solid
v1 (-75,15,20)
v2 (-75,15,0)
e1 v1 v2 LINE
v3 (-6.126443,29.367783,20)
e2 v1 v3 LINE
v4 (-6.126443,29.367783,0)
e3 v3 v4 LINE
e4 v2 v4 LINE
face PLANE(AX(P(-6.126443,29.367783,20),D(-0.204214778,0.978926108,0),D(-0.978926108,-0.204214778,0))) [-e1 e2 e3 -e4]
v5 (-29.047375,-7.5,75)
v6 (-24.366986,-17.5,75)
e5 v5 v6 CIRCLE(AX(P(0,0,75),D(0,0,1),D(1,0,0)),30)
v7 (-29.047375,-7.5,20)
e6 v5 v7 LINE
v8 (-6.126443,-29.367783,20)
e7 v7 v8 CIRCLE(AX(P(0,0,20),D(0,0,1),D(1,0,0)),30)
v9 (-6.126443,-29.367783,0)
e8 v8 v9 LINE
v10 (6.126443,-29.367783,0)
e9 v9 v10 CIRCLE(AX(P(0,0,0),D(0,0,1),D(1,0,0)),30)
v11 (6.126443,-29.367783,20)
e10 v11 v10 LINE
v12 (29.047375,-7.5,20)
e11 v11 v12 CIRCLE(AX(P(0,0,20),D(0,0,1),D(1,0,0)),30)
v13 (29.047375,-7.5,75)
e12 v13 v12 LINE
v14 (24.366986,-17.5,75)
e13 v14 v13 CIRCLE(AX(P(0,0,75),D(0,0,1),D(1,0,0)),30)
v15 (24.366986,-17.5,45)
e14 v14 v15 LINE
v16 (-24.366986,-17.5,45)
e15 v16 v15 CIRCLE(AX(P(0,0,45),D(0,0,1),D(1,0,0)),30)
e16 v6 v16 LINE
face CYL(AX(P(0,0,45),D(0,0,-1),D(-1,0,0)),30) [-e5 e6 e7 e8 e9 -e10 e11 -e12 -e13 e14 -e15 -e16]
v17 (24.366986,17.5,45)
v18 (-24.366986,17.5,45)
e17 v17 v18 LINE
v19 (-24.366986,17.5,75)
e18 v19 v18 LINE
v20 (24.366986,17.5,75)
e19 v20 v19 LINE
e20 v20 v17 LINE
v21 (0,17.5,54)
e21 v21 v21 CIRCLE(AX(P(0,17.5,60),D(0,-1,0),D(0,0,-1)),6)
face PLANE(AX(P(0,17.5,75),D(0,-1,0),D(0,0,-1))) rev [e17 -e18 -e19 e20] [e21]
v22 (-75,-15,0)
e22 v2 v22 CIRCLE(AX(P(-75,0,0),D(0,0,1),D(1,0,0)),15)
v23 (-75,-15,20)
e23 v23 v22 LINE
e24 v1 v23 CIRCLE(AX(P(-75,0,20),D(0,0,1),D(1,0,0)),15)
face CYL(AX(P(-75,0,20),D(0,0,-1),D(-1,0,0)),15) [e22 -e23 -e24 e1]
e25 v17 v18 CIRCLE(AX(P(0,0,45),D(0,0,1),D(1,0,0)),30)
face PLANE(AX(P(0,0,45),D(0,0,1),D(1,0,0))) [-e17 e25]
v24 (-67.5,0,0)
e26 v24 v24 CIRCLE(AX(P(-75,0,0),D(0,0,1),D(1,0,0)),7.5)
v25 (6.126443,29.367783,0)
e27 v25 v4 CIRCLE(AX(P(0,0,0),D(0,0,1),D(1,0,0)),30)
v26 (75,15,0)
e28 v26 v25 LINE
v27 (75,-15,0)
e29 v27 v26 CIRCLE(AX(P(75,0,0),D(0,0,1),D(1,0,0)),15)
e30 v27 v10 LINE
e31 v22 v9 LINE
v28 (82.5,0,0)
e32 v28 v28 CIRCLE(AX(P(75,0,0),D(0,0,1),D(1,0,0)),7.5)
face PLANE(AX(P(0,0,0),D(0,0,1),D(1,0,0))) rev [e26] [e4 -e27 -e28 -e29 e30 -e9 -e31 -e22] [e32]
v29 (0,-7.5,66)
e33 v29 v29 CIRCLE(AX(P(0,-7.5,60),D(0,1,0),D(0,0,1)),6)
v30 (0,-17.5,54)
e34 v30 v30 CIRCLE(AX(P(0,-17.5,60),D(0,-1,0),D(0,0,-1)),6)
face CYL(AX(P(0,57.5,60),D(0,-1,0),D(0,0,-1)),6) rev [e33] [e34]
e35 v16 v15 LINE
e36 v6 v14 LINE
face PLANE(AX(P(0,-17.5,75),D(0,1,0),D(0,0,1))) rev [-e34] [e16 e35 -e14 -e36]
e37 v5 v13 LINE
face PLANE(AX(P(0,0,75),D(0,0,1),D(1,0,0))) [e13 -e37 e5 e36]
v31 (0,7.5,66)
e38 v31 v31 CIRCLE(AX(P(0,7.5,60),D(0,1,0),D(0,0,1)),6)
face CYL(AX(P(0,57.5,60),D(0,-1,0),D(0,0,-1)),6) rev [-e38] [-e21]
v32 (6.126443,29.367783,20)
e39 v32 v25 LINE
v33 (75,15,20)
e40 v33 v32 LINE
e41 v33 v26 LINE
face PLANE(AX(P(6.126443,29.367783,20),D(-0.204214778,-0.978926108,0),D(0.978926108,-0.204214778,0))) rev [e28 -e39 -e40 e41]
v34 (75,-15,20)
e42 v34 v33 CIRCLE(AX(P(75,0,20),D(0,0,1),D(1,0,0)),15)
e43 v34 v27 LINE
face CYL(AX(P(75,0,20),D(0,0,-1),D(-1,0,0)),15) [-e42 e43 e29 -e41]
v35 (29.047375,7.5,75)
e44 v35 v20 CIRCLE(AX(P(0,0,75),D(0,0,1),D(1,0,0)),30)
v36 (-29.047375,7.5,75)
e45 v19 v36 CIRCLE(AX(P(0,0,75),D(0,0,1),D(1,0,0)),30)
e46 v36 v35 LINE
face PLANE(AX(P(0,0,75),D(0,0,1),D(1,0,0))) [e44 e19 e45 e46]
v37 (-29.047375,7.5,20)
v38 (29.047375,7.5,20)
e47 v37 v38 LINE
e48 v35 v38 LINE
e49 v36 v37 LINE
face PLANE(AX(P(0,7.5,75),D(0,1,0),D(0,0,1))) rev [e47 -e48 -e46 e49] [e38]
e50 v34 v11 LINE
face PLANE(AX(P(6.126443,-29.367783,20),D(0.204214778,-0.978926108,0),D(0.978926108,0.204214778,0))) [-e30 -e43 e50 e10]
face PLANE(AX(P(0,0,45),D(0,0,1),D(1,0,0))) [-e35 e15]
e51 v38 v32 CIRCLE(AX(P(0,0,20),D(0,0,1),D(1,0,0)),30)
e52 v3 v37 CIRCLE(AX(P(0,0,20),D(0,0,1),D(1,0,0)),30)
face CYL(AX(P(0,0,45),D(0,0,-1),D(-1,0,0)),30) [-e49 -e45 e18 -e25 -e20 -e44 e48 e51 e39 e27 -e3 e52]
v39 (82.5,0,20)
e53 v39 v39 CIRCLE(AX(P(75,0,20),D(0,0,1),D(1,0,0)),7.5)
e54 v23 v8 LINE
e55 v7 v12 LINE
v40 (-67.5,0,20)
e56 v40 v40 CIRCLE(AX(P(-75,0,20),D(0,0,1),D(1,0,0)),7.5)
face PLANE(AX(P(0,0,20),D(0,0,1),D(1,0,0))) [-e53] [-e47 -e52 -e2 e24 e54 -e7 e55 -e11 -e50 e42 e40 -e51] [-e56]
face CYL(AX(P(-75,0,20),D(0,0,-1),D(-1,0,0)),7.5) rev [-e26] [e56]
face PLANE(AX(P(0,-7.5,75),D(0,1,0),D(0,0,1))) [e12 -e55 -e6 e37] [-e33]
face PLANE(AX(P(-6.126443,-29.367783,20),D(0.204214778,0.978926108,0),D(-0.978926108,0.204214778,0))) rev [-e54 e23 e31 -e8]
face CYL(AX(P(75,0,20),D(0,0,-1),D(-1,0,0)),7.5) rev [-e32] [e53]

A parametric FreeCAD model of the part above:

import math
import FreeCAD as App
import Part
import Sketcher

doc = App.newDocument("Part")
body = doc.addObject("PartDesign::Body", "Body")

sketch1 = body.newObject("Sketcher::SketchObject", "Sketch")
sketch1.AttachmentSupport = (doc.getObject("XY_Plane"), [""])
sketch1.MapMode = "FlatFace"
sketch1.addGeometry([
    Part.LineSegment(App.Vector(29, 8, 0), App.Vector(-29, 8, 0)),
    Part.ArcOfCircle(Part.Circle(App.Vector(0, 0, 0), App.Vector(0, 0, 1), 30), math.radians(144), math.radians(166)),
    Part.ArcOfCircle(Part.Circle(App.Vector(0, 0, 0), App.Vector(0, 0, 1), 30), math.radians(102), math.radians(144)),
    Part.LineSegment(App.Vector(-6, 29, 0), App.Vector(-75, 15, 0)),
    Part.ArcOfCircle(Part.Circle(App.Vector(-75, 0, 0), App.Vector(0, 0, 1), 15), math.radians(90), math.radians(270)),
    Part.LineSegment(App.Vector(-75, -15, 0), App.Vector(-6, -29, 0)),
    Part.ArcOfCircle(Part.Circle(App.Vector(0, 0, 0), App.Vector(0, 0, 1), 30), math.radians(-144), math.radians(-102)),
    Part.ArcOfCircle(Part.Circle(App.Vector(0, 0, 0), App.Vector(0, 0, 1), 30), math.radians(-166), math.radians(-144)),
    Part.LineSegment(App.Vector(-29, -8, 0), App.Vector(29, -8, 0)),
    Part.ArcOfCircle(Part.Circle(App.Vector(0, 0, 0), App.Vector(0, 0, 1), 30), math.radians(-36), math.radians(-14)),
    Part.ArcOfCircle(Part.Circle(App.Vector(0, 0, 0), App.Vector(0, 0, 1), 30), math.radians(-78), math.radians(-36)),
    Part.LineSegment(App.Vector(6, -29, 0), App.Vector(75, -15, 0)),
    Part.ArcOfCircle(Part.Circle(App.Vector(75, 0, 0), App.Vector(0, 0, 1), 15), math.radians(-90), math.radians(90)),
    Part.LineSegment(App.Vector(75, 15, 0), App.Vector(6, 29, 0)),
    Part.ArcOfCircle(Part.Circle(App.Vector(0, 0, 0), App.Vector(0, 0, 1), 30), math.radians(36), math.radians(78)),
    Part.ArcOfCircle(Part.Circle(App.Vector(0, 0, 0), App.Vector(0, 0, 1), 30), math.radians(14), math.radians(36)),
    Part.Circle(App.Vector(-75, 0, 0), App.Vector(0, 0, 1), 8),
    Part.Circle(App.Vector(75, 0, 0), App.Vector(0, 0, 1), 8),
], False)
sketch1.addConstraint([
    Sketcher.Constraint("Coincident", 0, 2, 1, 2),
    Sketcher.Constraint("Tangent", 1, 1, 2, 2),
    Sketcher.Constraint("Tangent", 2, 1, 3, 1),
    Sketcher.Constraint("Coincident", 3, 2, 4, 1),
    Sketcher.Constraint("Coincident", 4, 2, 5, 1),
    Sketcher.Constraint("Tangent", 5, 2, 6, 2),
    Sketcher.Constraint("Tangent", 6, 1, 7, 2),
    Sketcher.Constraint("Coincident", 7, 1, 8, 1),
    Sketcher.Constraint("Coincident", 8, 2, 9, 2),
    Sketcher.Constraint("Tangent", 9, 1, 10, 2),
    Sketcher.Constraint("Tangent", 10, 1, 11, 1),
    Sketcher.Constraint("Coincident", 11, 2, 12, 1),
    Sketcher.Constraint("Coincident", 12, 2, 13, 1),
    Sketcher.Constraint("Tangent", 13, 2, 14, 2),
    Sketcher.Constraint("Tangent", 14, 1, 15, 2),
    Sketcher.Constraint("Coincident", 15, 1, 0, 1),
    Sketcher.Constraint("Horizontal", 0),
    Sketcher.Constraint("Horizontal", 8),
    Sketcher.Constraint("Coincident", 1, 3, -1, 1),
    Sketcher.Constraint("Coincident", 6, 3, -1, 1),
    Sketcher.Constraint("Coincident", 9, 3, -1, 1),
    Sketcher.Constraint("Coincident", 14, 3, -1, 1),
    Sketcher.Constraint("Coincident", 16, 3, 4, 3),
    Sketcher.Constraint("Coincident", 17, 3, 12, 3),
    Sketcher.Constraint("Equal", 1, 2),
    Sketcher.Constraint("Equal", 2, 6),
    Sketcher.Constraint("Equal", 6, 7),
    Sketcher.Constraint("Equal", 7, 9),
    Sketcher.Constraint("Equal", 9, 10),
    Sketcher.Constraint("Equal", 4, 12),
    Sketcher.Constraint("Equal", 10, 14),
    Sketcher.Constraint("Equal", 14, 15),
    Sketcher.Constraint("Equal", 16, 17),
    Sketcher.Constraint("Symmetric", 4, 3, 12, 3, -1, 1),
    Sketcher.Constraint("Symmetric", 4, 2, 11, 2, -2),
    Sketcher.Constraint("Parallel", 3, 11),
    Sketcher.Constraint("Parallel", 5, 13),
    Sketcher.Constraint("Horizontal", 6, 1, 9, 1),
    Sketcher.Constraint("Horizontal", 1, 1, 14, 1),
    Sketcher.Constraint("Vertical", 16, 3, 3, 2),
    Sketcher.Constraint("Vertical", 1, 1, 6, 1),
    Sketcher.Constraint("Vertical", 0, 2, 7, 1),
    Sketcher.Constraint("Diameter", 16, 15.0),
    Sketcher.Constraint("Radius", 1, 30.0),
    Sketcher.Constraint("Radius", 4, 15.0),
    Sketcher.Constraint("DistanceX", 4, 3, -1, 1, 75.0),
    Sketcher.Constraint("DistanceY", 0, 2, 1, 1, 10.0),
    Sketcher.Constraint("DistanceY", 6, 1, 0, 2, 25.0),
])
pad1 = body.newObject("PartDesign::Pad", "Pad")
pad1.Profile = sketch1
pad1.Length = 20

sketch2 = body.newObject("Sketcher::SketchObject", "Sketch001")
sketch2.AttachmentSupport = (doc.getObject("XY_Plane"), [""])
sketch2.MapMode = "FlatFace"
sketch2.addGeometry([
    Part.ArcOfCircle(Part.Circle(App.Vector(0, 0, 0), App.Vector(0, 0, 1), 30), math.radians(36), math.radians(144)),
    Part.LineSegment(App.Vector(-24, 18, 0), App.Vector(24, 18, 0)),
    Part.ArcOfCircle(Part.Circle(App.Vector(0, 0, 0), App.Vector(0, 0, 1), 30), math.radians(-144), math.radians(-36)),
    Part.LineSegment(App.Vector(24, -18, 0), App.Vector(-24, -18, 0)),
], False)
sketch2.addConstraint([
    Sketcher.Constraint("Coincident", 0, 1, 1, 2),
    Sketcher.Constraint("Coincident", 1, 1, 0, 2),
    Sketcher.Constraint("Coincident", 2, 1, 3, 2),
    Sketcher.Constraint("Coincident", 3, 1, 2, 2),
    Sketcher.Constraint("Horizontal", 1),
    Sketcher.Constraint("Horizontal", 3),
    Sketcher.Constraint("Coincident", 0, 3, -1, 1),
    Sketcher.Constraint("Coincident", 2, 3, -1, 1),
    Sketcher.Constraint("Equal", 0, 2),
    Sketcher.Constraint("Vertical", 1, 1, 2, 1),
    Sketcher.Constraint("Radius", 0, 30.0),
    Sketcher.Constraint("DistanceY", 2, 1, 1, 1, 35.0),
])
pad2 = body.newObject("PartDesign::Pad", "Pad001")
pad2.Profile = sketch2
pad2.Length = 45

sketch3 = body.newObject("Sketcher::SketchObject", "Sketch002")
sketch3.AttachmentSupport = (doc.getObject("XY_Plane"), [""])
sketch3.MapMode = "FlatFace"
sketch3.addGeometry([
    Part.ArcOfCircle(Part.Circle(App.Vector(0, 0, 0), App.Vector(0, 0, 1), 30), math.radians(144), math.radians(166)),
    Part.LineSegment(App.Vector(-29, 8, 0), App.Vector(29, 8, 0)),
    Part.ArcOfCircle(Part.Circle(App.Vector(0, 0, 0), App.Vector(0, 0, 1), 30), math.radians(14), math.radians(36)),
    Part.LineSegment(App.Vector(24, 18, 0), App.Vector(-24, 18, 0)),
    Part.ArcOfCircle(Part.Circle(App.Vector(0, 0, 0), App.Vector(0, 0, 1), 30), math.radians(-166), math.radians(-144)),
    Part.LineSegment(App.Vector(-24, -18, 0), App.Vector(24, -18, 0)),
    Part.ArcOfCircle(Part.Circle(App.Vector(0, 0, 0), App.Vector(0, 0, 1), 30), math.radians(-36), math.radians(-14)),
    Part.LineSegment(App.Vector(29, -8, 0), App.Vector(-29, -8, 0)),
], False)
sketch3.addConstraint([
    Sketcher.Constraint("Coincident", 0, 2, 1, 1),
    Sketcher.Constraint("Coincident", 1, 2, 2, 1),
    Sketcher.Constraint("Coincident", 2, 2, 3, 1),
    Sketcher.Constraint("Coincident", 3, 2, 0, 1),
    Sketcher.Constraint("Coincident", 4, 2, 5, 1),
    Sketcher.Constraint("Coincident", 5, 2, 6, 1),
    Sketcher.Constraint("Coincident", 6, 2, 7, 1),
    Sketcher.Constraint("Coincident", 7, 2, 4, 1),
    Sketcher.Constraint("Horizontal", 1),
    Sketcher.Constraint("Horizontal", 3),
    Sketcher.Constraint("Horizontal", 5),
    Sketcher.Constraint("Horizontal", 7),
    Sketcher.Constraint("Coincident", 0, 3, -1, 1),
    Sketcher.Constraint("Coincident", 2, 3, -1, 1),
    Sketcher.Constraint("Coincident", 4, 3, -1, 1),
    Sketcher.Constraint("Coincident", 6, 3, -1, 1),
    Sketcher.Constraint("Equal", 0, 2),
    Sketcher.Constraint("Equal", 2, 4),
    Sketcher.Constraint("Equal", 4, 6),
    Sketcher.Constraint("Vertical", 3, 2, 4, 2),
    Sketcher.Constraint("Vertical", 1, 2, 6, 2),
    Sketcher.Constraint("Radius", 0, 30.0),
    Sketcher.Constraint("DistanceY", 1, 2, 2, 2, 10.0),
    Sketcher.Constraint("DistanceY", 4, 2, 0, 2, 25.0),
])
pad3 = body.newObject("PartDesign::Pad", "Pad002")
pad3.Profile = sketch3
pad3.Length = 75

sketch4 = body.newObject("Sketcher::SketchObject", "Sketch003")
sketch4.AttachmentSupport = (doc.getObject("XZ_Plane"), [""])
sketch4.MapMode = "FlatFace"
sketch4.AttachmentOffset = App.Placement(App.Vector(0, 0, 17.5), App.Rotation())
sketch4.addGeometry(Part.Circle(App.Vector(0, 60, 0), App.Vector(0, 0, 1), 6), False)
sketch4.addConstraint([
    Sketcher.Constraint("PointOnObject", 0, 3, -2),
    Sketcher.Constraint("Diameter", 0, 12.0),
    Sketcher.Constraint("DistanceY", -1, 1, 0, 3, 60.0),
])
pocket1 = body.newObject("PartDesign::Pocket", "Pocket")
pocket1.Profile = sketch4
pocket1.Length = 75

doc.recompute()
